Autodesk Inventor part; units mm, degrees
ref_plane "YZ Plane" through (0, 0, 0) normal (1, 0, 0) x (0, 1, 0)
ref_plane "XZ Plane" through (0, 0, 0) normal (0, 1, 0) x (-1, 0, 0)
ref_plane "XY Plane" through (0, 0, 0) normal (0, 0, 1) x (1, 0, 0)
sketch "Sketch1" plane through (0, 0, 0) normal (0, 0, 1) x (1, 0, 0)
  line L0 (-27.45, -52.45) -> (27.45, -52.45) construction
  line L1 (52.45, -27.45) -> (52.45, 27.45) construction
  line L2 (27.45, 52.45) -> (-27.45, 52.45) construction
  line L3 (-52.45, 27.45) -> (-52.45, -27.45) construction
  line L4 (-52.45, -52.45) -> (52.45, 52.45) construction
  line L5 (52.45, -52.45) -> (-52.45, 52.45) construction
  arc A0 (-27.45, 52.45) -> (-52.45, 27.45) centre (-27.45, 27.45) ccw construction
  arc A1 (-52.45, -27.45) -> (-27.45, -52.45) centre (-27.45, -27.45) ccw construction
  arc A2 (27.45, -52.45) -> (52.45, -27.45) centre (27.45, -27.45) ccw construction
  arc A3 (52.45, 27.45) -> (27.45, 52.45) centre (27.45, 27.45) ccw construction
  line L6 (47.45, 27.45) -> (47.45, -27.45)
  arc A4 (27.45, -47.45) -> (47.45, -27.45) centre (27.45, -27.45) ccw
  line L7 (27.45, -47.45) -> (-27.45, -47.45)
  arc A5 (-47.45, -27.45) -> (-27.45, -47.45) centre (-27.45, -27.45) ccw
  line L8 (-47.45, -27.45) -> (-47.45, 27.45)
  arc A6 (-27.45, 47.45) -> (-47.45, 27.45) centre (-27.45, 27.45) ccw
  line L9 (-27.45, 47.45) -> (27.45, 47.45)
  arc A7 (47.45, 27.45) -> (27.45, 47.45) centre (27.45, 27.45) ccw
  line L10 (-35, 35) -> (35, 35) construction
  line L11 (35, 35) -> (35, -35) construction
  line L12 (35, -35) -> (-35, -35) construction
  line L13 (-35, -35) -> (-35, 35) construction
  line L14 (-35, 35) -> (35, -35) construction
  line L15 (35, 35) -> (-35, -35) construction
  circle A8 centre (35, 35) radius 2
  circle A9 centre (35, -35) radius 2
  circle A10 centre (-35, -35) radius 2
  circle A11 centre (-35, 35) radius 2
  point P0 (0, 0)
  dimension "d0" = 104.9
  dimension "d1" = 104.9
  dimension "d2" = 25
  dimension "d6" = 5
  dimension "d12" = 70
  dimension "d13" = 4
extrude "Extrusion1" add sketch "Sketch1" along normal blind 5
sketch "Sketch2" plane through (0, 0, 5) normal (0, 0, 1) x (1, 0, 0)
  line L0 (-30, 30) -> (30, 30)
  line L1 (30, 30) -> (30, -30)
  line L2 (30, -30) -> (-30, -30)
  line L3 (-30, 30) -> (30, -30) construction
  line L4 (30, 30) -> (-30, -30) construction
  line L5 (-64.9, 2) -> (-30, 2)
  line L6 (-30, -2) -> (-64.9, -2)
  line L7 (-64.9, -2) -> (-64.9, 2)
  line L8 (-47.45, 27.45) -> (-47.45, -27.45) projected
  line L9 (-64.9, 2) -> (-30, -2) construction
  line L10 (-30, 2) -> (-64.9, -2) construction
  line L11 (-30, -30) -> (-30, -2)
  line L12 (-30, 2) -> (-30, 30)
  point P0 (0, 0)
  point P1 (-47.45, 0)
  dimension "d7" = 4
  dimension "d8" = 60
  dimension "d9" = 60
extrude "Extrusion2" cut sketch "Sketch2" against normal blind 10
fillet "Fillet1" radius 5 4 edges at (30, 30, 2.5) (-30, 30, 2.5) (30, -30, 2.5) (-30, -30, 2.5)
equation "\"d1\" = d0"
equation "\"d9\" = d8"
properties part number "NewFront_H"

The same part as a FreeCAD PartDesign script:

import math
import FreeCAD as App
import Part
import Sketcher

V = App.Vector


def edges_at(feature, points):
    """Names of the edges that pass closest to the given points."""
    edges = feature.Shape.Edges
    near = lambda p: min(range(len(edges)), key=lambda i: edges[i].distToShape(Part.Vertex(*p))[0])
    return sorted({f"Edge{near(p) + 1}" for p in points})


def add_polygon(sketch, points):
    """Adds a closed chain of lines whose ends are joined by coincident constraints."""
    first, n = sketch.GeometryCount, len(points)
    for a, b in zip(points, points[1:] + points[:1]):
        sketch.addGeometry(Part.LineSegment(App.Vector(*a, 0), App.Vector(*b, 0)), False)
    for i in range(n):
        sketch.addConstraint(Sketcher.Constraint("Coincident", first + i, 2, first + (i + 1) % n, 1))

doc = App.newDocument("Part")
body = doc.addObject("PartDesign::Body", "Body")

sketch1 = doc.addObject("Sketcher::SketchObject", "Sketch")
body.addObject(sketch1)
sketch1.AttachmentSupport = (doc.XY_Plane, [""])
sketch1.MapMode = "FlatFace"
sketch1.addGeometry([
    Part.LineSegment(V(47.45, -27.45, 0), V(47.45, 27.45, 0)),
    Part.ArcOfCircle(Part.Circle(V(27.45, 27.45, 0), V(0, 0, 1), 20), math.radians(0), math.radians(90)),
    Part.LineSegment(V(27.45, 47.45, 0), V(-27.45, 47.45, 0)),
    Part.ArcOfCircle(Part.Circle(V(-27.45, 27.45, 0), V(0, 0, 1), 20), math.radians(90), math.radians(180)),
    Part.LineSegment(V(-47.45, 27.45, 0), V(-47.45, -27.45, 0)),
    Part.ArcOfCircle(Part.Circle(V(-27.45, -27.45, 0), V(0, 0, 1), 20), math.radians(180), math.radians(270)),
    Part.LineSegment(V(-27.45, -47.45, 0), V(27.45, -47.45, 0)),
    Part.ArcOfCircle(Part.Circle(V(27.45, -27.45, 0), V(0, 0, 1), 20), math.radians(-90), math.radians(0)),
    Part.Circle(V(-35, -35, 0), V(0, 0, 1), 2),
    Part.Circle(V(35, -35, 0), V(0, 0, 1), 2),
    Part.Circle(V(-35, 35, 0), V(0, 0, 1), 2),
    Part.Circle(V(35, 35, 0), V(0, 0, 1), 2),
], False)
sketch1.addConstraint([
    Sketcher.Constraint("Tangent", 0, 2, 1, 1),
    Sketcher.Constraint("Tangent", 1, 2, 2, 1),
    Sketcher.Constraint("Tangent", 2, 2, 3, 1),
    Sketcher.Constraint("Tangent", 3, 2, 4, 1),
    Sketcher.Constraint("Tangent", 4, 2, 5, 1),
    Sketcher.Constraint("Tangent", 5, 2, 6, 1),
    Sketcher.Constraint("Tangent", 6, 2, 7, 1),
    Sketcher.Constraint("Tangent", 7, 2, 0, 1),
    Sketcher.Constraint("Vertical", 0),
    Sketcher.Constraint("Horizontal", 2),
    Sketcher.Constraint("Vertical", 4),
    Sketcher.Constraint("Horizontal", 6),
    Sketcher.Constraint("Equal", 1, 3),
    Sketcher.Constraint("Equal", 3, 5),
    Sketcher.Constraint("Equal", 5, 7),
    Sketcher.Constraint("Equal", 8, 9),
    Sketcher.Constraint("Equal", 9, 10),
    Sketcher.Constraint("Equal", 10, 11),
    Sketcher.Constraint("Symmetric", 1, 3, 5, 3, -1, 1),
    Sketcher.Constraint("Symmetric", 9, 3, 10, 3, -1, 1),
    Sketcher.Constraint("Symmetric", 8, 3, 11, 3, -1, 1),
    Sketcher.Constraint("Symmetric", 8, 3, 9, 3, -2),
    Sketcher.Constraint("Equal", 6, 0),
    Sketcher.Constraint("Diameter", 8, 4.0),
    Sketcher.Constraint("Radius", 1, 20.0),
    Sketcher.Constraint("DistanceX", 8, 3, 9, 3, 70.0),
    Sketcher.Constraint("DistanceY", 8, 3, 10, 3, 70.0),
    Sketcher.Constraint("DistanceX", 2, 2, 2, 1, 54.9),
])
pad1 = doc.addObject("PartDesign::Pad", "Pad")
body.addObject(pad1)
pad1.Profile = sketch1
pad1.Length = 5

sketch2 = doc.addObject("Sketcher::SketchObject", "Sketch001")
body.addObject(sketch2)
sketch2.AttachmentSupport = (doc.XY_Plane, [""])
sketch2.MapMode = "FlatFace"
sketch2.AttachmentOffset = App.Placement(V(0, 0, 5), App.Rotation())
add_polygon(sketch2, [(30, 30), (-30, 30), (-30, 2), (-64.9, 2), (-64.9, -2), (-30, -2), (-30, -30), (30, -30)])
sketch2.addConstraint([
    Sketcher.Constraint("Horizontal", 0),
    Sketcher.Constraint("Vertical", 1),
    Sketcher.Constraint("Horizontal", 2),
    Sketcher.Constraint("Vertical", 3),
    Sketcher.Constraint("Horizontal", 4),
    Sketcher.Constraint("Vertical", 5),
    Sketcher.Constraint("Horizontal", 6),
    Sketcher.Constraint("Vertical", 7),
    Sketcher.Constraint("Symmetric", 0, 2, 6, 2, -1, 1),
    Sketcher.Constraint("Symmetric", 1, 2, 4, 2, -1),
    Sketcher.Constraint("Equal", 6, 7),
    Sketcher.Constraint("DistanceX", 0, 2, 0, 1, 60.0),
    Sketcher.Constraint("DistanceY", 3, 2, 3, 1, 4.0),
    Sketcher.Constraint("DistanceX", 2, 2, 2, 1, 34.9),
])
pocket1 = doc.addObject("PartDesign::Pocket", "Pocket")
body.addObject(pocket1)
pocket1.Profile = sketch2
pocket1.Length = 10
doc.recompute()

fillet = doc.addObject("PartDesign::Fillet", "Fillet")
body.addObject(fillet)
fillet.Base = (pocket1, edges_at(pocket1, [
    (30, 30, 2.5),
    (-30, 30, 2.5),
    (30, -30, 2.5),
    (-30, -30, 2.5),
]))
fillet.Radius = 5

doc.recompute()
